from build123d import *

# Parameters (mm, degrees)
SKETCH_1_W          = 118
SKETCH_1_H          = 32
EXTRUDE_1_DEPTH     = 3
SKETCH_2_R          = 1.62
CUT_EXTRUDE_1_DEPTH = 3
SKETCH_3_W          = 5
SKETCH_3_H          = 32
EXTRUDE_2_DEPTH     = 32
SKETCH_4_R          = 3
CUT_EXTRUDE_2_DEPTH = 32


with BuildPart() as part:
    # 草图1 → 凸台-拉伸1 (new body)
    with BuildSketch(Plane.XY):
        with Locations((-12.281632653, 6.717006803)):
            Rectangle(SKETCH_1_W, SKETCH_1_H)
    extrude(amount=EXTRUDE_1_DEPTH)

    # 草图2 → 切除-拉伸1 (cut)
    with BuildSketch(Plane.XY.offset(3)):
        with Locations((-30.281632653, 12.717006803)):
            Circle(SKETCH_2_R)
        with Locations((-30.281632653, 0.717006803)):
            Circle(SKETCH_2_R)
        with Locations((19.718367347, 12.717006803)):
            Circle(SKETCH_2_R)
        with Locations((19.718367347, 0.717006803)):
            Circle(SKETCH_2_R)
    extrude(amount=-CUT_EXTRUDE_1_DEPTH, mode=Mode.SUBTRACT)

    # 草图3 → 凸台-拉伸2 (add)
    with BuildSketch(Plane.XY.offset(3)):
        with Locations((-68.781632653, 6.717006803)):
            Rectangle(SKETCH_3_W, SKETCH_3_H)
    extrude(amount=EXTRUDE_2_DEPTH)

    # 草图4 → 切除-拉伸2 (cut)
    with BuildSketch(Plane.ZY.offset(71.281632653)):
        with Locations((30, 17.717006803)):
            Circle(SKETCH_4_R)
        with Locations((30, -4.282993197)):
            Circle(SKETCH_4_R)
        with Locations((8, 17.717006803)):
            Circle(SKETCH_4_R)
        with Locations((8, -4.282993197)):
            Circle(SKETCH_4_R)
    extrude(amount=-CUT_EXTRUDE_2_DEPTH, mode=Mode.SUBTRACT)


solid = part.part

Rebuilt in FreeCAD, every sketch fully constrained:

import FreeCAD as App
import Part
import Sketcher

doc = App.newDocument("Part")
body = doc.addObject("PartDesign::Body", "Body")

sketch1 = doc.addObject("Sketcher::SketchObject", "Sketch")
body.addObject(sketch1)
sketch1.AttachmentSupport = (doc.XY_Plane, [""])
sketch1.MapMode = "FlatFace"
sketch1.addGeometry([
    Part.LineSegment(App.Vector(-71, 23, 0), App.Vector(-71, -9, 0)),
    Part.LineSegment(App.Vector(-71, -9, 0), App.Vector(47, -9, 0)),
    Part.LineSegment(App.Vector(47, -9, 0), App.Vector(47, 23, 0)),
    Part.LineSegment(App.Vector(47, 23, 0), App.Vector(-71, 23, 0)),
], False)
sketch1.addConstraint([
    Sketcher.Constraint("Coincident", 0, 2, 1, 1),
    Sketcher.Constraint("Coincident", 1, 2, 2, 1),
    Sketcher.Constraint("Coincident", 2, 2, 3, 1),
    Sketcher.Constraint("Coincident", 3, 2, 0, 1),
    Sketcher.Constraint("Vertical", 0),
    Sketcher.Constraint("Horizontal", 1),
    Sketcher.Constraint("Vertical", 2),
    Sketcher.Constraint("Horizontal", 3),
    Sketcher.Constraint("DistanceX", 1, 1, 1, 2, 118.0),
    Sketcher.Constraint("DistanceY", 0, 2, 0, 1, 32.0),
    Sketcher.Constraint("DistanceX", 0, 2, -1, 1, 71.281633),
    Sketcher.Constraint("DistanceY", 0, 2, -1, 1, 9.282993),
])
pad1 = doc.addObject("PartDesign::Pad", "Pad")
body.addObject(pad1)
pad1.Profile = sketch1
pad1.Length = 3

sketch2 = doc.addObject("Sketcher::SketchObject", "Sketch001")
body.addObject(sketch2)
sketch2.AttachmentSupport = (doc.XY_Plane, [""])
sketch2.MapMode = "FlatFace"
sketch2.AttachmentOffset = App.Placement(App.Vector(0, 0, 3), App.Rotation())
sketch2.addGeometry([
    Part.Circle(App.Vector(-30.3, 12.7, 0), App.Vector(0, 0, 1), 1.6),
    Part.Circle(App.Vector(-30.3, 0.7, 0), App.Vector(0, 0, 1), 1.6),
    Part.Circle(App.Vector(19.7, 12.7, 0), App.Vector(0, 0, 1), 1.6),
    Part.Circle(App.Vector(19.7, 0.7, 0), App.Vector(0, 0, 1), 1.6),
], False)
sketch2.addConstraint([
    Sketcher.Constraint("Equal", 0, 1),
    Sketcher.Constraint("Equal", 1, 2),
    Sketcher.Constraint("Equal", 2, 3),
    Sketcher.Constraint("Horizontal", 0, 3, 2, 3),
    Sketcher.Constraint("Horizontal", 1, 3, 3, 3),
    Sketcher.Constraint("Vertical", 0, 3, 1, 3),
    Sketcher.Constraint("Vertical", 2, 3, 3, 3),
    Sketcher.Constraint("Diameter", 0, 3.24),
    Sketcher.Constraint("DistanceY", 1, 3, 0, 3, 12.0),
    Sketcher.Constraint("DistanceX", 0, 3, 2, 3, 50.0),
    Sketcher.Constraint("DistanceX", 0, 3, -1, 1, 30.281633),
    Sketcher.Constraint("DistanceY", -1, 1, 0, 3, 12.717007),
])
pocket1 = doc.addObject("PartDesign::Pocket", "Pocket")
body.addObject(pocket1)
pocket1.Profile = sketch2
pocket1.Length = 3

sketch3 = doc.addObject("Sketcher::SketchObject", "Sketch002")
body.addObject(sketch3)
sketch3.AttachmentSupport = (doc.XY_Plane, [""])
sketch3.MapMode = "FlatFace"
sketch3.AttachmentOffset = App.Placement(App.Vector(0, 0, 3), App.Rotation())
sketch3.addGeometry([
    Part.LineSegment(App.Vector(-71, 23, 0), App.Vector(-71, -9, 0)),
    Part.LineSegment(App.Vector(-71, -9, 0), App.Vector(-66, -9, 0)),
    Part.LineSegment(App.Vector(-66, -9, 0), App.Vector(-66, 23, 0)),
    Part.LineSegment(App.Vector(-66, 23, 0), App.Vector(-71, 23, 0)),
], False)
sketch3.addConstraint([
    Sketcher.Constraint("Coincident", 0, 2, 1, 1),
    Sketcher.Constraint("Coincident", 1, 2, 2, 1),
    Sketcher.Constraint("Coincident", 2, 2, 3, 1),
    Sketcher.Constraint("Coincident", 3, 2, 0, 1),
    Sketcher.Constraint("Vertical", 0),
    Sketcher.Constraint("Horizontal", 1),
    Sketcher.Constraint("Vertical", 2),
    Sketcher.Constraint("Horizontal", 3),
    Sketcher.Constraint("DistanceX", 1, 1, 1, 2, 5.0),
    Sketcher.Constraint("DistanceY", 0, 2, 0, 1, 32.0),
    Sketcher.Constraint("DistanceX", 0, 2, -1, 1, 71.281633),
    Sketcher.Constraint("DistanceY", 0, 2, -1, 1, 9.282993),
])
pad2 = doc.addObject("PartDesign::Pad", "Pad001")
body.addObject(pad2)
pad2.Profile = sketch3
pad2.Length = 32

sketch4 = doc.addObject("Sketcher::SketchObject", "Sketch003")
body.addObject(sketch4)
sketch4.AttachmentSupport = (doc.YZ_Plane, [""])
sketch4.MapMode = "FlatFace"
sketch4.AttachmentOffset = App.Placement(App.Vector(0, 0, -71.281633), App.Rotation())
sketch4.addGeometry([
    Part.Circle(App.Vector(17.7, 30, 0), App.Vector(0, 0, 1), 3),
    Part.Circle(App.Vector(-4.3, 30, 0), App.Vector(0, 0, 1), 3),
    Part.Circle(App.Vector(17.7, 8, 0), App.Vector(0, 0, 1), 3),
    Part.Circle(App.Vector(-4.3, 8, 0), App.Vector(0, 0, 1), 3),
], False)
sketch4.addConstraint([
    Sketcher.Constraint("Equal", 0, 1),
    Sketcher.Constraint("Equal", 1, 2),
    Sketcher.Constraint("Equal", 2, 3),
    Sketcher.Constraint("Horizontal", 0, 3, 1, 3),
    Sketcher.Constraint("Horizontal", 2, 3, 3, 3),
    Sketcher.Constraint("Vertical", 0, 3, 2, 3),
    Sketcher.Constraint("Vertical", 1, 3, 3, 3),
    Sketcher.Constraint("Diameter", 0, 6.0),
    Sketcher.Constraint("DistanceY", -1, 1, 0, 3, 30.0),
    Sketcher.Constraint("DistanceY", -1, 1, 2, 3, 8.0),
    Sketcher.Constraint("DistanceX", 1, 3, 0, 3, 22.0),
    Sketcher.Constraint("DistanceX", -1, 1, 0, 3, 17.717007),
])
pocket2 = doc.addObject("PartDesign::Pocket", "Pocket001")
body.addObject(pocket2)
pocket2.Profile = sketch4
pocket2.Length = 32
pocket2.Reversed = True

doc.recompute()
